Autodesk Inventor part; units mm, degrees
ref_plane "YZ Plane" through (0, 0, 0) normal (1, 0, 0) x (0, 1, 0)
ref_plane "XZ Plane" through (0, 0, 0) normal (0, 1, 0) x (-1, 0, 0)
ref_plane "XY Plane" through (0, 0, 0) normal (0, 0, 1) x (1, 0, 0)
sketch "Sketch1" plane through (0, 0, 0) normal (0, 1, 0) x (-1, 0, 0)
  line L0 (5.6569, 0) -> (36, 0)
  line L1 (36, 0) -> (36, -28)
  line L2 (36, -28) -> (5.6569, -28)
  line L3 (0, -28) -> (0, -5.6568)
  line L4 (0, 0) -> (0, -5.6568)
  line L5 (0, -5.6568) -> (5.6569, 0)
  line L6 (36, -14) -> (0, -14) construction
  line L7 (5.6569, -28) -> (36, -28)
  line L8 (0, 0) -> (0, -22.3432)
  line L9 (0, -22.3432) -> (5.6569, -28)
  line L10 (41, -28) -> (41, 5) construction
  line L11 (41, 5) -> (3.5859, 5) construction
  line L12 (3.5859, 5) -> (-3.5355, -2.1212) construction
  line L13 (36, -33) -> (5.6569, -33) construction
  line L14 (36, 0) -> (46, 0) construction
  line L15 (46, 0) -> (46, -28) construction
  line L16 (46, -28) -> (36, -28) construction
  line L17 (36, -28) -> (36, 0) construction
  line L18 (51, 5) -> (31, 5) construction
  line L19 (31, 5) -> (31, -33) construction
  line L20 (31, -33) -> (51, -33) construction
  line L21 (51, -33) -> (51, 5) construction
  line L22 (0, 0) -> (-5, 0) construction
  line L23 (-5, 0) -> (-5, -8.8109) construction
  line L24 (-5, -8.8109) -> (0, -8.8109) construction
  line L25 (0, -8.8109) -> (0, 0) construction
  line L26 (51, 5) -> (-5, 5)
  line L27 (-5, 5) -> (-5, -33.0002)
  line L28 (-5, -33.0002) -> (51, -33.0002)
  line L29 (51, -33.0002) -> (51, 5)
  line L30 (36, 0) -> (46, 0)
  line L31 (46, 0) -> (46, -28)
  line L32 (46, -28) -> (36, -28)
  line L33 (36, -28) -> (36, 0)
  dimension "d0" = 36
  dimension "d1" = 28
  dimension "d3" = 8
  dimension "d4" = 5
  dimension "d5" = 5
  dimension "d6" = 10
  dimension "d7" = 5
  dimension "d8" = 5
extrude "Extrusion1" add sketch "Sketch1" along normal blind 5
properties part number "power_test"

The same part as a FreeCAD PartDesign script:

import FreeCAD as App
import Part
import Sketcher

V = App.Vector
Q = App.Units.Quantity


def add_polygon(sketch, points):
    """Adds a closed chain of lines whose ends are joined by coincident constraints."""
    first, n = sketch.GeometryCount, len(points)
    for a, b in zip(points, points[1:] + points[:1]):
        sketch.addGeometry(Part.LineSegment(App.Vector(*a, 0), App.Vector(*b, 0)), False)
    for i in range(n):
        sketch.addConstraint(Sketcher.Constraint("Coincident", first + i, 2, first + (i + 1) % n, 1))

doc = App.newDocument("Part")
body = doc.addObject("PartDesign::Body", "Body")

sketch1 = doc.addObject("Sketcher::SketchObject", "Sketch")
body.addObject(sketch1)
sketch1.AttachmentSupport = (doc.XZ_Plane, [""])
sketch1.MapMode = "FlatFace"
add_polygon(sketch1, [(-51, -33), (-51, 5), (5, 5), (5, -33)])
add_polygon(sketch1, [(0, -6), (-6, 0), (-46, 0), (-46, -28), (-6, -28), (0, -22)])
sketch1.addConstraint([
    Sketcher.Constraint("Vertical", 0),
    Sketcher.Constraint("Horizontal", 1),
    Sketcher.Constraint("Vertical", 2),
    Sketcher.Constraint("Horizontal", 3),
    Sketcher.Constraint("Horizontal", 5),
    Sketcher.Constraint("Vertical", 6),
    Sketcher.Constraint("Horizontal", 7),
    Sketcher.Constraint("Vertical", 9),
    Sketcher.Constraint("PointOnObject", 4, 2, -1),
    Sketcher.Constraint("PointOnObject", 8, 2, -2),
    Sketcher.Constraint("Perpendicular", 4, 8),
    Sketcher.Constraint("Vertical", 4, 2, 7, 2),
    Sketcher.Constraint("Equal", 4, 8),
    Sketcher.Constraint("DistanceY", 6, 2, 6, 1, Q("28 mm")),
    Sketcher.Constraint("Distance", 4, Q("8 mm")),
    Sketcher.Constraint("DistanceY", -1, 1, 0, 2, Q("5 mm")),
    Sketcher.Constraint("DistanceX", -1, 1, 1, 2, Q("5 mm")),
    Sketcher.Constraint("DistanceX", 0, 2, 5, 2, Q("5 mm")),
    Sketcher.Constraint("DistanceX", 1, 1, 1, 2, Q("56 mm")),
    Sketcher.Constraint("DistanceY", 3, 2, 6, 2, Q("5.0002 mm")),
])
pad1 = doc.addObject("PartDesign::Pad", "Pad")
body.addObject(pad1)
pad1.Profile = sketch1
pad1.Length = 5
pad1.Reversed = True

doc.recompute()
